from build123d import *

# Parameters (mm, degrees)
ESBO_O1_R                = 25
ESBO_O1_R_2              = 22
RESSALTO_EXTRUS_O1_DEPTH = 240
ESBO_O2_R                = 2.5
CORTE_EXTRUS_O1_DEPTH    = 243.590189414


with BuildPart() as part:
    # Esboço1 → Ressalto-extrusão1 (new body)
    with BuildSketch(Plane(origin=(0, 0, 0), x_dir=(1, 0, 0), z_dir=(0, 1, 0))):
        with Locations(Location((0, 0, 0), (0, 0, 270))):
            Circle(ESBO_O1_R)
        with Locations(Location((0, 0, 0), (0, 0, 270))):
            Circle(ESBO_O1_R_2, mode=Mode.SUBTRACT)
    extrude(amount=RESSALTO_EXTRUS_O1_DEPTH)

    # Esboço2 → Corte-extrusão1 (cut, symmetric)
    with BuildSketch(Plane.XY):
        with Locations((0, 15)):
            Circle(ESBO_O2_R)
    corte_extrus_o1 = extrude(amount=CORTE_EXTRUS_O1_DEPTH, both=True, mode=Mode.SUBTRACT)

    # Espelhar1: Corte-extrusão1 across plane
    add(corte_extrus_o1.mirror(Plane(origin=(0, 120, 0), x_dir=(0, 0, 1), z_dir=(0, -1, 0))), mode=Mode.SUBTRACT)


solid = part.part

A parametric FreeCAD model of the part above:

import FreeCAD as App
import Part
import Sketcher

V = App.Vector

doc = App.newDocument("Part")
params = doc.addObject("Spreadsheet::Sheet", "Params")
for row, (alias, value) in enumerate([
    ("sketch1_diameter", "50 mm"),
    ("sketch1_diameter2", "44 mm"),
    ("pad1_length", "240 mm"),
    ("sketch2_diameter", "5 mm"),
    ("pocket1_length", "487.180379 mm"),
], start=1):
    params.set(f"A{row}", alias)
    params.set(f"B{row}", "=" + value)
    params.setAlias(f"B{row}", alias)

body = doc.addObject("PartDesign::Body", "Body")

# Sketch on XZ plane
sketch1 = body.newObject("Sketcher::SketchObject", "Sketch")
sketch1.AttachmentSupport = (doc.getObject("XZ_Plane"), [""])
sketch1.MapMode = "FlatFace"
sketch1.addGeometry(Part.Circle(V(0, 0, 0), V(0, 0, 1), 25), False)
sketch1.addGeometry(Part.Circle(V(0, 0, 0), V(0, 0, 1), 22), False)
sketch1.addConstraint(Sketcher.Constraint("Coincident", 0, 3, -1, 1))
sketch1.addConstraint(Sketcher.Constraint("Coincident", 1, 3, -1, 1))
sketch1.addConstraint(Sketcher.Constraint("Diameter", 0, 50.0))
sketch1.addConstraint(Sketcher.Constraint("Diameter", 1, 44.0))
sketch1.setExpression("Constraints[2]", "Params.sketch1_diameter")
sketch1.setExpression("Constraints[3]", "Params.sketch1_diameter2")
pad1 = body.newObject("PartDesign::Pad", "Pad")
pad1.Profile = sketch1
pad1.setExpression("Length", "Params.pad1_length")
pad1.Reversed = True

# Sketch on XY plane
sketch2 = body.newObject("Sketcher::SketchObject", "Sketch001")
sketch2.AttachmentSupport = (doc.getObject("XY_Plane"), [""])
sketch2.MapMode = "FlatFace"
sketch2.addGeometry(Part.Circle(V(0, 15, 0), V(0, 0, 1), 2.5), False)
sketch2.addConstraint(Sketcher.Constraint("PointOnObject", 0, 3, -2))
sketch2.addConstraint(Sketcher.Constraint("Diameter", 0, 5.0))
sketch2.addConstraint(Sketcher.Constraint("DistanceY", -1, 1, 0, 3, 15.0))
sketch2.setExpression("Constraints[1]", "Params.sketch2_diameter")
pocket1 = body.newObject("PartDesign::Pocket", "Pocket")
pocket1.Profile = sketch2
pocket1.setExpression("Length", "Params.pocket1_length")
pocket1.Midplane = True
doc.recompute()

datumplane = body.newObject("PartDesign::Plane", "DatumPlane")
datumplane.AttachmentSupport = (doc.getObject("XZ_Plane"), [""])
datumplane.MapMode = "FlatFace"
datumplane.AttachmentOffset = App.Placement(V(0, 0, -120), App.Rotation())
mirrored = body.newObject("PartDesign::Mirrored", "Mirrored")
mirrored.Originals = [pocket1]
mirrored.MirrorPlane = (datumplane, [""])
body.Tip = mirrored

doc.recompute()
